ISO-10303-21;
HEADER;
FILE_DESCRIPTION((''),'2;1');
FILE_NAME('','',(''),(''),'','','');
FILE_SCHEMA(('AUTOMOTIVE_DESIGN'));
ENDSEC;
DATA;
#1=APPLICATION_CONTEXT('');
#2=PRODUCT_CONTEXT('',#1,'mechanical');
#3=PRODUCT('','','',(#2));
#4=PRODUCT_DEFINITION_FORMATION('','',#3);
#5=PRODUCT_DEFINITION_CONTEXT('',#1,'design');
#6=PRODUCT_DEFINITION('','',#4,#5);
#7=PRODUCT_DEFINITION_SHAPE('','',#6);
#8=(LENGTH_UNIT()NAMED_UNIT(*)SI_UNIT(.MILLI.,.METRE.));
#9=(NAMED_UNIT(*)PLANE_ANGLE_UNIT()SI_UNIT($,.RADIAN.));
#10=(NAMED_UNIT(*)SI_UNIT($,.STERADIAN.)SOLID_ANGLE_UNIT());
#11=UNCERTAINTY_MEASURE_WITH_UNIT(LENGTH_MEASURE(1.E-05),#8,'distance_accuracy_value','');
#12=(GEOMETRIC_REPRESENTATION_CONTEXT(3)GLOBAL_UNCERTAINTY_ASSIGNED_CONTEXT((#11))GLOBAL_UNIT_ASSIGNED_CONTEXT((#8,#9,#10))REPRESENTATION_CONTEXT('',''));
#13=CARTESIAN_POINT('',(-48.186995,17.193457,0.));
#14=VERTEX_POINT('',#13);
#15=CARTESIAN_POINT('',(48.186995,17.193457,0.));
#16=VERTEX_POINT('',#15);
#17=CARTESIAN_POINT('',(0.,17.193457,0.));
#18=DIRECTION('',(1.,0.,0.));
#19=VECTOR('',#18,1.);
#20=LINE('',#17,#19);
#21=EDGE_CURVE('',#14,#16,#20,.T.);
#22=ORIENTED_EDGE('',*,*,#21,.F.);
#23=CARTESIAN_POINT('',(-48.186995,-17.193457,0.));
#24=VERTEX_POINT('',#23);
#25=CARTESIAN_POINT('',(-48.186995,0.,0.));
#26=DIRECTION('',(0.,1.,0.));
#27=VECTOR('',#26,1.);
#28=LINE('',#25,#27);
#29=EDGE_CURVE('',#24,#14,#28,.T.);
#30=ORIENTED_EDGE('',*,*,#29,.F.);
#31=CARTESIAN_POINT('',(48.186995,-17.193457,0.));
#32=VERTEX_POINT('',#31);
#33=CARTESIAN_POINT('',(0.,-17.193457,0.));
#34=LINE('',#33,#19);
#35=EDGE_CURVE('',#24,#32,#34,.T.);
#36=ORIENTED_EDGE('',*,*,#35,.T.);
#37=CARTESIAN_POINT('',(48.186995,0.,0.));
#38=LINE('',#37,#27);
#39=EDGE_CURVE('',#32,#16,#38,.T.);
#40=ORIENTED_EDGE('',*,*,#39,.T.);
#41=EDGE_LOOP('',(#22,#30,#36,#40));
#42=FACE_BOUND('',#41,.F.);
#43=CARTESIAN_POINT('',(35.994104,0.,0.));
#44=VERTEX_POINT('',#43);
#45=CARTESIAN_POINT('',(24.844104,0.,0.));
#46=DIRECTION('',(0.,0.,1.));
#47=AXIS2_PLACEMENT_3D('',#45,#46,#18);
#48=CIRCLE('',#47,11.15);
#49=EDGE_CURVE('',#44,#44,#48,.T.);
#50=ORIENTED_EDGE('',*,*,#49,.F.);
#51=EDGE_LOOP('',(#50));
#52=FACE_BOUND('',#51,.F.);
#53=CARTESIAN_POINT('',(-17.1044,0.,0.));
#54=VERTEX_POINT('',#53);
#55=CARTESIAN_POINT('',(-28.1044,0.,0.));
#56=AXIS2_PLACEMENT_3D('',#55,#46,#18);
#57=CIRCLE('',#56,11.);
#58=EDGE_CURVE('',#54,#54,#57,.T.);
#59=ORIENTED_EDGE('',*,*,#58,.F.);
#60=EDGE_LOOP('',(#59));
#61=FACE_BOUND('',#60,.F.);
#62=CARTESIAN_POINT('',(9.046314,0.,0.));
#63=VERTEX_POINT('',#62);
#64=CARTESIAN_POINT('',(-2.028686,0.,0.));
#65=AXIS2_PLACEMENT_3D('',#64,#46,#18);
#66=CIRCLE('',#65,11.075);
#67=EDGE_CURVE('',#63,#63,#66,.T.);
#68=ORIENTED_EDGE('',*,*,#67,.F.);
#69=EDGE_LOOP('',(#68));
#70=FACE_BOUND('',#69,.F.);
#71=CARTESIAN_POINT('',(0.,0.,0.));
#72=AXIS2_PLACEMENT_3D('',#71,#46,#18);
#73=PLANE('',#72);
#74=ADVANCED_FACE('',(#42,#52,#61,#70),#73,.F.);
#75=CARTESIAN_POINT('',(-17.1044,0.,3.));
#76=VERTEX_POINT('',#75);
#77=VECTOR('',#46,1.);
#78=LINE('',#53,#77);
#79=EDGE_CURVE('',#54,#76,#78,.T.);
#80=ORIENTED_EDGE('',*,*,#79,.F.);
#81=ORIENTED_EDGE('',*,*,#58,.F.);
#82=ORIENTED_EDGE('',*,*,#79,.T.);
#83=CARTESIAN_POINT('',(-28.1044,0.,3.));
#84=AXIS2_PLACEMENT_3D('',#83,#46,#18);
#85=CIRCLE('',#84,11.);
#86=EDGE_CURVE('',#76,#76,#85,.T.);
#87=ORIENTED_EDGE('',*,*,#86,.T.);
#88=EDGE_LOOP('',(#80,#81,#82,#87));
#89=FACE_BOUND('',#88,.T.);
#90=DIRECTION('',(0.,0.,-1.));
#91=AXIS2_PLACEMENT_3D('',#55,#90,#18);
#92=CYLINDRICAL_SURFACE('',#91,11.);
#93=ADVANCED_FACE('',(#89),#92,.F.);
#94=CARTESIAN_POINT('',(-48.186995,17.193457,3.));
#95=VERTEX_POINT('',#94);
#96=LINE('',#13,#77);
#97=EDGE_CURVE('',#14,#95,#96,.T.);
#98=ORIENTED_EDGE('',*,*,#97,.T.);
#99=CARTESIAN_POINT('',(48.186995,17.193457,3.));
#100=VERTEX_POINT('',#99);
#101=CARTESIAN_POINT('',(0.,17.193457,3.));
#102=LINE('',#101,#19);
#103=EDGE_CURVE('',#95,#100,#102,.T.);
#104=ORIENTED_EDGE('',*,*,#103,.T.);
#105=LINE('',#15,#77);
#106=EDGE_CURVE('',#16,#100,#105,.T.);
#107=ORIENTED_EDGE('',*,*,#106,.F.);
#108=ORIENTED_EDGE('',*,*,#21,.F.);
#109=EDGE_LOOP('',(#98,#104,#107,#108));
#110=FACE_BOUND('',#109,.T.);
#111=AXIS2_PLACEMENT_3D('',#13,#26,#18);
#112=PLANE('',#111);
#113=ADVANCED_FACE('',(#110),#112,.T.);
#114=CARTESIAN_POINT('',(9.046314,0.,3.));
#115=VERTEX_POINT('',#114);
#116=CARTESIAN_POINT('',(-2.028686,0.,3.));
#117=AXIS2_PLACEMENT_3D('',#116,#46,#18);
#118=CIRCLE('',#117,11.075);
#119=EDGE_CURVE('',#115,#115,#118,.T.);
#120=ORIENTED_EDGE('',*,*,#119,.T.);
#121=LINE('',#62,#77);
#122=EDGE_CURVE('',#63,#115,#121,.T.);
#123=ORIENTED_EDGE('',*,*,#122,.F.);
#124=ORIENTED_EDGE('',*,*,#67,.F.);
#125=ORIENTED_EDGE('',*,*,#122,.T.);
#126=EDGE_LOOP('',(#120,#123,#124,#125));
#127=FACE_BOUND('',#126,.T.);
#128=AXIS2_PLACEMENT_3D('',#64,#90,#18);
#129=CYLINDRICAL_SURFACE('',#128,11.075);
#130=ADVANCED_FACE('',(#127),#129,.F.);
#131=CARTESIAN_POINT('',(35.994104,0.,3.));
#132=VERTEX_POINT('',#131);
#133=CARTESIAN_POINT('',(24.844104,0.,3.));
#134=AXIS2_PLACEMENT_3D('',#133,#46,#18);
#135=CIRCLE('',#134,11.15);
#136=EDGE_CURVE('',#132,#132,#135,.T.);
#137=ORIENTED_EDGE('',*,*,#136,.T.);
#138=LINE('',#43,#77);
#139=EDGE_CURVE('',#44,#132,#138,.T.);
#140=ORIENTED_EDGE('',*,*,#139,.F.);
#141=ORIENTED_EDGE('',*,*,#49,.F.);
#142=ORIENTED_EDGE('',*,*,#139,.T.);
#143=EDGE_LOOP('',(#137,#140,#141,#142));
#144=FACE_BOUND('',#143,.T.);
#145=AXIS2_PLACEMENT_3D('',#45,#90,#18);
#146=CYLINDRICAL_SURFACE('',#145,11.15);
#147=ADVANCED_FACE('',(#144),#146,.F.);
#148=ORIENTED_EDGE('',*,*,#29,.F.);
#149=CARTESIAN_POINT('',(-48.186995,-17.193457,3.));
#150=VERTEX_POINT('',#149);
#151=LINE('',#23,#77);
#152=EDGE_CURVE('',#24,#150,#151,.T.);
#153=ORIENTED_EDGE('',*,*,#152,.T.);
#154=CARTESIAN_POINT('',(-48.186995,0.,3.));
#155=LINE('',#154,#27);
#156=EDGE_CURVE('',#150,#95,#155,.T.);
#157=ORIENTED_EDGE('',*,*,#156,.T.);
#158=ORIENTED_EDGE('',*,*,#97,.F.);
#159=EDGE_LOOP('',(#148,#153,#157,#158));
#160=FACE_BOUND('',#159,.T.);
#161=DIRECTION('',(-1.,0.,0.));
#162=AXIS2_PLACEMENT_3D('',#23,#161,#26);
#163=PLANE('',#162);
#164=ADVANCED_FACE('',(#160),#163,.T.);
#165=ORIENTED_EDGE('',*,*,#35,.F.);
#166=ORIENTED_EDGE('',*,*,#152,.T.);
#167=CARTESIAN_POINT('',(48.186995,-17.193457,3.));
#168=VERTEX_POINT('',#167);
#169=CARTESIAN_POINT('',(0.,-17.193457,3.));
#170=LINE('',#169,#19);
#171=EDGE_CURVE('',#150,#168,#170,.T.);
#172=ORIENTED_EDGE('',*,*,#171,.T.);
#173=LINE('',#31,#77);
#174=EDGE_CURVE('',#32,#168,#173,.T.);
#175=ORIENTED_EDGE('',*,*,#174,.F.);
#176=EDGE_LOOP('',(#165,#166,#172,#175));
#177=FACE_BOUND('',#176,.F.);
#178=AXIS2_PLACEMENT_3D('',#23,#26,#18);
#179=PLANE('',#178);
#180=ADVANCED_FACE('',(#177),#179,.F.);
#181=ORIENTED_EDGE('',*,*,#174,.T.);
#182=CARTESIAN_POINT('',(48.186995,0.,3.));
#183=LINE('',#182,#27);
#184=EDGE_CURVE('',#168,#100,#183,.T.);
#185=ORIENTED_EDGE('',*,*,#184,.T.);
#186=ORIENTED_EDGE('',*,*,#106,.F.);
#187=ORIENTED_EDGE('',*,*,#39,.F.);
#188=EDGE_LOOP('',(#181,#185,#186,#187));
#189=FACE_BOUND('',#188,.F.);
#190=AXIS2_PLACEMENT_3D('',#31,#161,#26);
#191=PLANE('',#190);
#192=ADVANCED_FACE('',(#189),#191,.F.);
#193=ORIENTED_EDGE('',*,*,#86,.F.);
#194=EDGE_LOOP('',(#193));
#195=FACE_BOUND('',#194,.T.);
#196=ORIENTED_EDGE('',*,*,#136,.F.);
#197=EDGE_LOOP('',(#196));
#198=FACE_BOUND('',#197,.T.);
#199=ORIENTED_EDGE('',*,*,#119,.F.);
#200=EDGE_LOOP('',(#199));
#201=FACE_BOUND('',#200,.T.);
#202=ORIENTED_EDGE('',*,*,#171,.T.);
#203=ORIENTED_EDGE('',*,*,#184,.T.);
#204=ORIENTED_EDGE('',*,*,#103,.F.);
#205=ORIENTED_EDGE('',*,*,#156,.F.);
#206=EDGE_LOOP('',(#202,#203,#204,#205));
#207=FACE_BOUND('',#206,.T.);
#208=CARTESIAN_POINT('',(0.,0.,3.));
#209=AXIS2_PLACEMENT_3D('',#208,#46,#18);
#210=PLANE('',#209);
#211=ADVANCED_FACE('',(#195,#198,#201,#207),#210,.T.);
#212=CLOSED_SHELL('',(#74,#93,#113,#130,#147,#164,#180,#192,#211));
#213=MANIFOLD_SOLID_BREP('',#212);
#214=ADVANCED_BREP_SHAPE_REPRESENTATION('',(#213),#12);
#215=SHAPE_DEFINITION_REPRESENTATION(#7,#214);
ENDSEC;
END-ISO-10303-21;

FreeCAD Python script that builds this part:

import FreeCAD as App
import Part
import Sketcher
from FreeCAD import Vector
Q = App.Units.Quantity


def add_polygon(sketch, points):
    """Adds a closed chain of lines whose ends are joined by coincident constraints."""
    first, n = sketch.GeometryCount, len(points)
    for a, b in zip(points, points[1:] + points[:1]):
        sketch.addGeometry(Part.LineSegment(App.Vector(*a, 0), App.Vector(*b, 0)), False)
    for i in range(n):
        sketch.addConstraint(Sketcher.Constraint("Coincident", first + i, 2, first + (i + 1) % n, 1))

doc = App.newDocument("Part")
body = doc.addObject("PartDesign::Body", "Body")

# Sketch on XY plane
sketch1 = body.newObject("Sketcher::SketchObject", "Sketch")
sketch1.AttachmentSupport = (doc.getObject("XY_Plane"), [""])
sketch1.MapMode = "FlatFace"
add_polygon(sketch1, [(-48.186995, 17.193457), (-48.186995, -17.193457), (48.186995, -17.193457), (48.186995, 17.193457)])  # lines 0-3
sketch1.addGeometry(Part.Circle(Vector(-28.1044, 0, 0), Vector(0, 0, 1), 11), False)  # 4
sketch1.addGeometry(Part.Circle(Vector(-2.028686, 0, 0), Vector(0, 0, 1), 11.075), False)  # 5
sketch1.addGeometry(Part.Circle(Vector(24.844104, 0, 0), Vector(0, 0, 1), 11.15), False)  # 6
sketch1.addConstraint([
    Sketcher.Constraint("Vertical", 0),
    Sketcher.Constraint("Horizontal", 1),
    Sketcher.Constraint("Vertical", 2),
    Sketcher.Constraint("Horizontal", 3),
    Sketcher.Constraint("Symmetric", 0, 2, 2, 2, -1, 1),
    Sketcher.Constraint("PointOnObject", 4, 3, -1),
    Sketcher.Constraint("PointOnObject", 5, 3, -1),
    Sketcher.Constraint("PointOnObject", 6, 3, -1),
    Sketcher.Constraint("Diameter", 4, Q("22 mm")),
    Sketcher.Constraint("Diameter", 6, Q("22.3 mm")),
    Sketcher.Constraint("Diameter", 5, Q("22.15 mm")),
    Sketcher.Constraint("DistanceX", 1, 1, 1, 2, Q("96.37399 mm")),
    Sketcher.Constraint("DistanceX", 4, 3, -1, 1, Q("28.1044 mm")),
    Sketcher.Constraint("DistanceX", 0, 2, 6, 3, Q("73.031099 mm")),
    Sketcher.Constraint("DistanceY", 0, 2, 0, 1, Q("34.386914 mm")),
    Sketcher.Constraint("DistanceX", 5, 3, 6, 3, Q("26.87279 mm")),
])
pad1 = body.newObject("PartDesign::Pad", "Pad")
pad1.Profile = sketch1
pad1.Length = 3

doc.recompute()
